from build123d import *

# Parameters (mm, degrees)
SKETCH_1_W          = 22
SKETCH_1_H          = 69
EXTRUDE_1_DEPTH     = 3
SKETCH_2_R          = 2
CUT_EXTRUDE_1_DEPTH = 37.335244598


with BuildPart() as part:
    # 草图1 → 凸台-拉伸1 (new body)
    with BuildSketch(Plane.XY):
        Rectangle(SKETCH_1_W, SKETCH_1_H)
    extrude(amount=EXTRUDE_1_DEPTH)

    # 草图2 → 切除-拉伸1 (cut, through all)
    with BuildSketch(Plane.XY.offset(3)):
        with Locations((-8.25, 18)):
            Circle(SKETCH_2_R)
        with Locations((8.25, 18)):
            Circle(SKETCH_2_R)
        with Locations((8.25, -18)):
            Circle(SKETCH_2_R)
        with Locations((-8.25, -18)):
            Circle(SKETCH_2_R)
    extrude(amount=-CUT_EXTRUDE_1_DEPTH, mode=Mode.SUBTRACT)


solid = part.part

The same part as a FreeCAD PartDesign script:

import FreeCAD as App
import Part
import Sketcher
from FreeCAD import Vector
Q = App.Units.Quantity

doc = App.newDocument("Part")
body = doc.addObject("PartDesign::Body", "Body")

sketch1 = body.newObject("Sketcher::SketchObject", "Sketch")
sketch1.AttachmentSupport = (doc.getObject("XY_Plane"), [""])
sketch1.MapMode = "FlatFace"
sketch1.addGeometry([
    Part.LineSegment(Vector(-11, 34.5, 0), Vector(-11, -34.5, 0)),
    Part.LineSegment(Vector(-11, -34.5, 0), Vector(11, -34.5, 0)),
    Part.LineSegment(Vector(11, -34.5, 0), Vector(11, 34.5, 0)),
    Part.LineSegment(Vector(11, 34.5, 0), Vector(-11, 34.5, 0)),
], False)
sketch1.addConstraint([
    Sketcher.Constraint("Coincident", 0, 2, 1, 1),
    Sketcher.Constraint("Coincident", 1, 2, 2, 1),
    Sketcher.Constraint("Coincident", 2, 2, 3, 1),
    Sketcher.Constraint("Coincident", 3, 2, 0, 1),
    Sketcher.Constraint("Vertical", 0),
    Sketcher.Constraint("Horizontal", 1),
    Sketcher.Constraint("Vertical", 2),
    Sketcher.Constraint("Horizontal", 3),
    Sketcher.Constraint("Symmetric", 0, 2, 2, 2, -1, 1),
    Sketcher.Constraint("DistanceX", 1, 1, 1, 2, Q("22 mm")),
    Sketcher.Constraint("DistanceY", 0, 2, 0, 1, Q("69 mm")),
])
pad1 = body.newObject("PartDesign::Pad", "Pad")
pad1.Profile = sketch1
pad1.Length = 3

sketch2 = body.newObject("Sketcher::SketchObject", "Sketch001")
sketch2.AttachmentSupport = (doc.getObject("XY_Plane"), [""])
sketch2.MapMode = "FlatFace"
sketch2.AttachmentOffset = App.Placement(Vector(0, 0, 3), App.Rotation())
sketch2.addGeometry([
    Part.Circle(Vector(-8.25, 18, 0), Vector(0, 0, 1), 2),
    Part.Circle(Vector(8.25, 18, 0), Vector(0, 0, 1), 2),
    Part.Circle(Vector(8.25, -18, 0), Vector(0, 0, 1), 2),
    Part.Circle(Vector(-8.25, -18, 0), Vector(0, 0, 1), 2),
], False)
sketch2.addConstraint([
    Sketcher.Constraint("Equal", 0, 1),
    Sketcher.Constraint("Equal", 1, 2),
    Sketcher.Constraint("Equal", 2, 3),
    Sketcher.Constraint("Symmetric", 0, 3, 2, 3, -1, 1),
    Sketcher.Constraint("Symmetric", 1, 3, 3, 3, -1, 1),
    Sketcher.Constraint("Symmetric", 0, 3, 1, 3, -2),
    Sketcher.Constraint("Diameter", 0, Q("4 mm")),
    Sketcher.Constraint("DistanceY", -1, 1, 0, 3, Q("18 mm")),
    Sketcher.Constraint("DistanceX", 0, 3, 1, 3, Q("16.5 mm")),
])
pocket1 = body.newObject("PartDesign::Pocket", "Pocket")
pocket1.Profile = sketch2
pocket1.Type = "ThroughAll"

doc.recompute()
